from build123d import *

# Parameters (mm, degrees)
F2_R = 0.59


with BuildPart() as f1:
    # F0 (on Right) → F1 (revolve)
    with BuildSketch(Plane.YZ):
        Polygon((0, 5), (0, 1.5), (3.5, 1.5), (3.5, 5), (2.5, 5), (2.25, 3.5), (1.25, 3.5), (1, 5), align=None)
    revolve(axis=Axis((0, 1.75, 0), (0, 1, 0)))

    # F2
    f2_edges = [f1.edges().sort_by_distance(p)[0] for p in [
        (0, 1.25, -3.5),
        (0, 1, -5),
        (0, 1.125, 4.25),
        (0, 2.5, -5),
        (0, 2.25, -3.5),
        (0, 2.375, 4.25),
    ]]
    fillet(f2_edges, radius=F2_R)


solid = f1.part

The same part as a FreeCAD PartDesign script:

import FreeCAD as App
import Part
import Sketcher

V = App.Vector
Q = App.Units.Quantity


def edges_at(feature, points):
    """Names of the edges that pass closest to the given points."""
    edges = feature.Shape.Edges
    near = lambda p: min(range(len(edges)), key=lambda i: edges[i].distToShape(Part.Vertex(*p))[0])
    return sorted({f"Edge{near(p) + 1}" for p in points})


def add_polygon(sketch, points):
    """Adds a closed chain of lines whose ends are joined by coincident constraints."""
    first, n = sketch.GeometryCount, len(points)
    for a, b in zip(points, points[1:] + points[:1]):
        sketch.addGeometry(Part.LineSegment(App.Vector(*a, 0), App.Vector(*b, 0)), False)
    for i in range(n):
        sketch.addConstraint(Sketcher.Constraint("Coincident", first + i, 2, first + (i + 1) % n, 1))

doc = App.newDocument("Part")
body = doc.addObject("PartDesign::Body", "Body")

sketch1 = doc.addObject("Sketcher::SketchObject", "Sketch")
body.addObject(sketch1)
sketch1.AttachmentSupport = (doc.YZ_Plane, [""])
sketch1.MapMode = "FlatFace"
add_polygon(sketch1, [(0, 5), (0, 1.5), (3.5, 1.5), (3.5, 5), (2.5, 5), (2.2, 3.5), (1.2, 3.5), (1, 5)])
sketch1.addConstraint(Sketcher.Constraint("Vertical", 0))
sketch1.addConstraint(Sketcher.Constraint("Horizontal", 1))
sketch1.addConstraint(Sketcher.Constraint("Vertical", 2))
sketch1.addConstraint(Sketcher.Constraint("Horizontal", 3))
sketch1.addConstraint(Sketcher.Constraint("Horizontal", 5))
sketch1.addConstraint(Sketcher.Constraint("Horizontal", 7))
sketch1.addConstraint(Sketcher.Constraint("PointOnObject", 0, 2, -2))
sketch1.addConstraint(Sketcher.Constraint("Horizontal", 3, 2, 6, 2))
sketch1.addConstraint(Sketcher.Constraint("Equal", 3, 5))
sketch1.addConstraint(Sketcher.Constraint("Equal", 5, 7))
sketch1.addConstraint(Sketcher.Constraint("Equal", 1, 0))
sketch1.addConstraint(Sketcher.Constraint("Equal", 4, 6))
sketch1.addConstraint(Sketcher.Constraint("DistanceX", 3, 2, 3, 1, Q("1 mm")))
sketch1.addConstraint(Sketcher.Constraint("DistanceX", 1, 1, 1, 2, Q("3.5 mm")))
sketch1.addConstraint(Sketcher.Constraint("DistanceY", -1, 1, 2, 2, Q("5 mm")))
sketch1.addConstraint(Sketcher.Constraint("DistanceY", 1, 2, 4, 2, Q("2 mm")))
revolution = doc.addObject("PartDesign::Revolution", "Revolution")
body.addObject(revolution)
revolution.Profile = sketch1
revolution.ReferenceAxis = (sketch1, ["H_Axis"])
revolution.Angle = 360
doc.recompute()

fillet = doc.addObject("PartDesign::Fillet", "Fillet")
body.addObject(fillet)
fillet.Base = (revolution, edges_at(revolution, [
    (0, 1.25, -3.5),
    (0, 1, -5),
    (0, 1.125, 4.25),
    (0, 2.5, -5),
    (0, 2.25, -3.5),
    (0, 2.375, 4.25),
]))
fillet.Radius = 0.59

doc.recompute()
